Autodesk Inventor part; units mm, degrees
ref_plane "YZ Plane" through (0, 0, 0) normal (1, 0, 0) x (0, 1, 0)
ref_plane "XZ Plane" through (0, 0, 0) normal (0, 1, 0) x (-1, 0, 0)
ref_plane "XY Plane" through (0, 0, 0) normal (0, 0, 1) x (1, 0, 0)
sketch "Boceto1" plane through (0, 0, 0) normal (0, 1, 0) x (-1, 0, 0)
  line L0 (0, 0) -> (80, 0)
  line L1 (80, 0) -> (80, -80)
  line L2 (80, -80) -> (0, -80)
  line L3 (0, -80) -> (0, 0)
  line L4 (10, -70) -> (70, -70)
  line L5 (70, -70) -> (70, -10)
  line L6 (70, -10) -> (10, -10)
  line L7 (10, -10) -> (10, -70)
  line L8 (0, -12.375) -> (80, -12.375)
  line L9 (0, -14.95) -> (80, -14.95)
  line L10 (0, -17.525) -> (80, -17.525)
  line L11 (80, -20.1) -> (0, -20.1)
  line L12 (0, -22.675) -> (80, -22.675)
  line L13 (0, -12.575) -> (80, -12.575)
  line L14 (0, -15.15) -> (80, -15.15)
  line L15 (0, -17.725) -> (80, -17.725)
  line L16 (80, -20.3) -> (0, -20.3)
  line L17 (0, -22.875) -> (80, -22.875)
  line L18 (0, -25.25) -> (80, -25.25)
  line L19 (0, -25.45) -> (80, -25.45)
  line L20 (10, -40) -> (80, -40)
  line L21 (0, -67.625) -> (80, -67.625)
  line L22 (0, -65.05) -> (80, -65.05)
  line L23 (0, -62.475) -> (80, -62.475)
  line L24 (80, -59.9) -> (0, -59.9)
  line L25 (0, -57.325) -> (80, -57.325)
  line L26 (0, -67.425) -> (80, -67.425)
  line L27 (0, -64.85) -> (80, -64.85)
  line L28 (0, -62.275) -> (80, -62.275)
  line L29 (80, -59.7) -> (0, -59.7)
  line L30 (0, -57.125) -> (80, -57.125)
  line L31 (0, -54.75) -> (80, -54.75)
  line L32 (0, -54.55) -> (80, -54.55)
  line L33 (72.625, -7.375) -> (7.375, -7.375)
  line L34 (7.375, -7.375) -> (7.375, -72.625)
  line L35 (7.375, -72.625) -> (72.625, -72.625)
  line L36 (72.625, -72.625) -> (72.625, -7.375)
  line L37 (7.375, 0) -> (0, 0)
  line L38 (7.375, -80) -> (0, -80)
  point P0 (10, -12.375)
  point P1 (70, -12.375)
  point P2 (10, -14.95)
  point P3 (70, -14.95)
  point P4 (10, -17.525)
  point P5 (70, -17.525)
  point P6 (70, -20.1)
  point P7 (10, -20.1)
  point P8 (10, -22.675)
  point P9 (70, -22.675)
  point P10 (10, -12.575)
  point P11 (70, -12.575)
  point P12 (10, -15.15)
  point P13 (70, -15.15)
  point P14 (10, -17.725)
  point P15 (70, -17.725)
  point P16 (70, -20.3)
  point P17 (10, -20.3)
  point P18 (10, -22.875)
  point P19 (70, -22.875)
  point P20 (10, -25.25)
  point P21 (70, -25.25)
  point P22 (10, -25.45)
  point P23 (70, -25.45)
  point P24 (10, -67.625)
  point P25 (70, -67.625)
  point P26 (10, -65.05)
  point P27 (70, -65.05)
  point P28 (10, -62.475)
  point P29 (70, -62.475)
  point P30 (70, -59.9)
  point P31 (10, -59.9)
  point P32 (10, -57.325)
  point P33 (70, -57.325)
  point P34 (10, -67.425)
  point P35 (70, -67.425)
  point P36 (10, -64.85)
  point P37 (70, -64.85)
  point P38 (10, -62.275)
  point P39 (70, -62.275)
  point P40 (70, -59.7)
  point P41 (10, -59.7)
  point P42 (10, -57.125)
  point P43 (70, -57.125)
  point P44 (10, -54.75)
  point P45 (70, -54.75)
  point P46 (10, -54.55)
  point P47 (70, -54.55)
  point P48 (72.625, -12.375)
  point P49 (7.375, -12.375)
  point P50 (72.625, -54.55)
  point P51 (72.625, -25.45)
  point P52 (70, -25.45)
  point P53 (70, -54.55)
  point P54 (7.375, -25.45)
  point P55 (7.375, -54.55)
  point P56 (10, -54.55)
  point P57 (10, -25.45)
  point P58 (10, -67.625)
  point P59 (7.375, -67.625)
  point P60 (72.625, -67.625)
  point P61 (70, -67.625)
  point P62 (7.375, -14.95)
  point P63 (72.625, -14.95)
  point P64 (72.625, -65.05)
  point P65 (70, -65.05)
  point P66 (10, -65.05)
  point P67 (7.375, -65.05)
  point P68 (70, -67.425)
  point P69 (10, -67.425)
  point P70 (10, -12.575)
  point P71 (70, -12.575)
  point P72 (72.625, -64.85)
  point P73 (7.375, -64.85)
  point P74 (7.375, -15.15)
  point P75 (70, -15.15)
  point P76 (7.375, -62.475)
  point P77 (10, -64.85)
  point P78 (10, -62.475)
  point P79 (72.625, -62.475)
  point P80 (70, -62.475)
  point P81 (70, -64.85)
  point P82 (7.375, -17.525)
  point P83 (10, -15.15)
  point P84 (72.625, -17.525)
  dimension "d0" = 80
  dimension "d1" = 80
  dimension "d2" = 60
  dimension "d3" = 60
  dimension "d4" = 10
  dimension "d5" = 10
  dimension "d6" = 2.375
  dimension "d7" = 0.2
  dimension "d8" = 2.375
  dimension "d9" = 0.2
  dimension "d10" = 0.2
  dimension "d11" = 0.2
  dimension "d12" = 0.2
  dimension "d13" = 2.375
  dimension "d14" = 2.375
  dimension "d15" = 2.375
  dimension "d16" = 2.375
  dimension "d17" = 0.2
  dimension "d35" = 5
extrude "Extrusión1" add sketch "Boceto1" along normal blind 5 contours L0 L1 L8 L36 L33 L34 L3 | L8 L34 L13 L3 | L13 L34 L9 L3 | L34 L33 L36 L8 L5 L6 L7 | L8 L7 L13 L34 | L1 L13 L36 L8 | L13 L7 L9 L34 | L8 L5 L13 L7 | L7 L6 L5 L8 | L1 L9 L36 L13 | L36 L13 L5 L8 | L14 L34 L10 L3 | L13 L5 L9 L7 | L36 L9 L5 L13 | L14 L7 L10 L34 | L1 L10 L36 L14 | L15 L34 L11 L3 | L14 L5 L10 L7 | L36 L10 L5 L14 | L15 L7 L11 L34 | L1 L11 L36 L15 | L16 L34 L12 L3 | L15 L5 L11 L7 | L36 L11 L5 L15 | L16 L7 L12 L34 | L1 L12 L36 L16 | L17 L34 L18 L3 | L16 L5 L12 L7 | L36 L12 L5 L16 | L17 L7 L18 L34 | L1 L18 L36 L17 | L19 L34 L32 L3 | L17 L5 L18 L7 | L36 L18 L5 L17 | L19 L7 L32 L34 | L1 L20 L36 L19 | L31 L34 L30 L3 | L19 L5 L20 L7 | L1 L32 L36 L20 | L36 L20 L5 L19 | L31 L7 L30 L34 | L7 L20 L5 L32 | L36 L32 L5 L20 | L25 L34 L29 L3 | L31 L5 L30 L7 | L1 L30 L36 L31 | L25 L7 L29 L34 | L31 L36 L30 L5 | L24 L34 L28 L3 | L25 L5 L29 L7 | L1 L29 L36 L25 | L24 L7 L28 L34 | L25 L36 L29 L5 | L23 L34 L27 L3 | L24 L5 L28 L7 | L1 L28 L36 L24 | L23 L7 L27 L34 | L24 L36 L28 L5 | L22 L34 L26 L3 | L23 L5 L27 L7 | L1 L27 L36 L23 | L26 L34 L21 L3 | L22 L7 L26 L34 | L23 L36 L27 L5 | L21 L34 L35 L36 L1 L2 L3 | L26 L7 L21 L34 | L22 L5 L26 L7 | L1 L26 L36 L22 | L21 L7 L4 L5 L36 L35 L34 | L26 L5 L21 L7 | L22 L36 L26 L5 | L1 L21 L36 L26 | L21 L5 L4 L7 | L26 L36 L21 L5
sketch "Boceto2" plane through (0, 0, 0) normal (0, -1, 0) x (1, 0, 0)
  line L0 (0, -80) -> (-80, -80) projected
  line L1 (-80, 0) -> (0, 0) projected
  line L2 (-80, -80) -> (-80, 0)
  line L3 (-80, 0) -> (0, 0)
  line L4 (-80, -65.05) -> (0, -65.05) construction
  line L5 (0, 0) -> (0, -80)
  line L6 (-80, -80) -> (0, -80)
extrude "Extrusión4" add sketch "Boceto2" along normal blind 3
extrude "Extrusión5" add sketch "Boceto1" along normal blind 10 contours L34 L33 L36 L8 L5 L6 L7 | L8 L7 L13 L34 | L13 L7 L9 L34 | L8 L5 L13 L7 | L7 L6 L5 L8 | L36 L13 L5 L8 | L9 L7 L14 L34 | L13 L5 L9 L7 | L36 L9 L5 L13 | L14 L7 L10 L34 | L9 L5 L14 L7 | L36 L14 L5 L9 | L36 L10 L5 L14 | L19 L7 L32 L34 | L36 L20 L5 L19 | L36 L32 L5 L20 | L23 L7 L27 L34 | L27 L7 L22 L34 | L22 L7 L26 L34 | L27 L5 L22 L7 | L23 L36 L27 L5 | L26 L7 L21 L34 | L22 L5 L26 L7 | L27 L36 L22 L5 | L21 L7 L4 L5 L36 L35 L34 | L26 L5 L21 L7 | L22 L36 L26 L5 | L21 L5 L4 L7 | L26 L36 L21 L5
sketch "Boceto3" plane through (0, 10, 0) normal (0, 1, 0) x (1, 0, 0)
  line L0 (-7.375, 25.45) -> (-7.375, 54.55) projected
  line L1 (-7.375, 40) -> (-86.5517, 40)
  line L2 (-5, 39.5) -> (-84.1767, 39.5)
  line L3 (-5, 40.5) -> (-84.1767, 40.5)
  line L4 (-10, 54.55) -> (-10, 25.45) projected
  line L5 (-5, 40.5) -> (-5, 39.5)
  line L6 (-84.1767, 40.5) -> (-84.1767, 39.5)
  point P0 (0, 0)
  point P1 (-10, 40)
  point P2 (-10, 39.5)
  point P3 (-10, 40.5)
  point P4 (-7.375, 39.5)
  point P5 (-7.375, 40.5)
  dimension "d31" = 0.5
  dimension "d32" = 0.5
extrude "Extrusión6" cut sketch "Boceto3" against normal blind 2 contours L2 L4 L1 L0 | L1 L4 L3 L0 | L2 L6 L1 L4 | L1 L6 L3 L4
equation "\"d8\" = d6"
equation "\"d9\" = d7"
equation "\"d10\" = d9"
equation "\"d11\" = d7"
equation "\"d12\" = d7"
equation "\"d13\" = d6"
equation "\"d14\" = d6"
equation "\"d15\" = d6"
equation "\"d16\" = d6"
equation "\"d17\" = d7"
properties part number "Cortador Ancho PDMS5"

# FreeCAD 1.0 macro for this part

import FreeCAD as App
import Part
import Sketcher
Q = App.Units.Quantity


def add_polygon(sketch, points):
    """Adds a closed chain of lines whose ends are joined by coincident constraints."""
    first, n = sketch.GeometryCount, len(points)
    for a, b in zip(points, points[1:] + points[:1]):
        sketch.addGeometry(Part.LineSegment(App.Vector(*a, 0), App.Vector(*b, 0)), False)
    for i in range(n):
        sketch.addConstraint(Sketcher.Constraint("Coincident", first + i, 2, first + (i + 1) % n, 1))

doc = App.newDocument("Part")
body = doc.addObject("PartDesign::Body", "Body")
body.AllowCompound = True

sketch1 = body.newObject("Sketcher::SketchObject", "Sketch")
sketch1.AttachmentSupport = (doc.getObject("XZ_Plane"), [""])
sketch1.MapMode = "FlatFace"
add_polygon(sketch1, [(0, 0), (0, -14.9), (-80, -14.9), (-80, 0)])
add_polygon(sketch1, [(0, -15.2), (0, -17.5), (-80, -17.5), (-80, -15.2)])
add_polygon(sketch1, [(0, -17.7), (0, -20.1), (-80, -20.1), (-80, -17.7)])
add_polygon(sketch1, [(0, -20.3), (0, -22.7), (-80, -22.7), (-80, -20.3)])
add_polygon(sketch1, [(0, -22.9), (0, -25.2), (-80, -25.2), (-80, -22.9)])
add_polygon(sketch1, [(0, -25.4), (0, -54.5), (-80, -54.5), (-80, -25.4)])
add_polygon(sketch1, [(0, -54.8), (0, -57.1), (-80, -57.1), (-80, -54.8)])
add_polygon(sketch1, [(0, -57.3), (0, -59.7), (-80, -59.7), (-80, -57.3)])
add_polygon(sketch1, [(0, -59.9), (0, -62.3), (-80, -62.3), (-80, -59.9)])
add_polygon(sketch1, [(0, -62.5), (0, -64.8), (-80, -64.8), (-80, -62.5)])
add_polygon(sketch1, [(0, -65), (0, -80), (-80, -80), (-80, -65)])
sketch1.addConstraint(Sketcher.Constraint("Vertical", 0))
sketch1.addConstraint(Sketcher.Constraint("Horizontal", 1))
sketch1.addConstraint(Sketcher.Constraint("Vertical", 2))
sketch1.addConstraint(Sketcher.Constraint("Horizontal", 3))
sketch1.addConstraint(Sketcher.Constraint("Vertical", 4))
sketch1.addConstraint(Sketcher.Constraint("Horizontal", 5))
sketch1.addConstraint(Sketcher.Constraint("Vertical", 6))
sketch1.addConstraint(Sketcher.Constraint("Horizontal", 7))
sketch1.addConstraint(Sketcher.Constraint("Vertical", 8))
sketch1.addConstraint(Sketcher.Constraint("Horizontal", 9))
sketch1.addConstraint(Sketcher.Constraint("Vertical", 10))
sketch1.addConstraint(Sketcher.Constraint("Horizontal", 11))
sketch1.addConstraint(Sketcher.Constraint("Vertical", 12))
sketch1.addConstraint(Sketcher.Constraint("Horizontal", 13))
sketch1.addConstraint(Sketcher.Constraint("Vertical", 14))
sketch1.addConstraint(Sketcher.Constraint("Horizontal", 15))
sketch1.addConstraint(Sketcher.Constraint("Vertical", 16))
sketch1.addConstraint(Sketcher.Constraint("Horizontal", 17))
sketch1.addConstraint(Sketcher.Constraint("Vertical", 18))
sketch1.addConstraint(Sketcher.Constraint("Horizontal", 19))
sketch1.addConstraint(Sketcher.Constraint("Vertical", 20))
sketch1.addConstraint(Sketcher.Constraint("Horizontal", 21))
sketch1.addConstraint(Sketcher.Constraint("Vertical", 22))
sketch1.addConstraint(Sketcher.Constraint("Horizontal", 23))
sketch1.addConstraint(Sketcher.Constraint("Vertical", 24))
sketch1.addConstraint(Sketcher.Constraint("Horizontal", 25))
sketch1.addConstraint(Sketcher.Constraint("Vertical", 26))
sketch1.addConstraint(Sketcher.Constraint("Horizontal", 27))
sketch1.addConstraint(Sketcher.Constraint("Vertical", 28))
sketch1.addConstraint(Sketcher.Constraint("Horizontal", 29))
sketch1.addConstraint(Sketcher.Constraint("Vertical", 30))
sketch1.addConstraint(Sketcher.Constraint("Horizontal", 31))
sketch1.addConstraint(Sketcher.Constraint("Vertical", 32))
sketch1.addConstraint(Sketcher.Constraint("Horizontal", 33))
sketch1.addConstraint(Sketcher.Constraint("Vertical", 34))
sketch1.addConstraint(Sketcher.Constraint("Horizontal", 35))
sketch1.addConstraint(Sketcher.Constraint("Vertical", 36))
sketch1.addConstraint(Sketcher.Constraint("Horizontal", 37))
sketch1.addConstraint(Sketcher.Constraint("Vertical", 38))
sketch1.addConstraint(Sketcher.Constraint("Horizontal", 39))
sketch1.addConstraint(Sketcher.Constraint("Vertical", 40))
sketch1.addConstraint(Sketcher.Constraint("Horizontal", 41))
sketch1.addConstraint(Sketcher.Constraint("Vertical", 42))
sketch1.addConstraint(Sketcher.Constraint("Horizontal", 43))
sketch1.addConstraint(Sketcher.Constraint("Coincident", 3, 2, -1, 1))
sketch1.addConstraint(Sketcher.Constraint("PointOnObject", 4, 2, -2))
sketch1.addConstraint(Sketcher.Constraint("PointOnObject", 8, 2, -2))
sketch1.addConstraint(Sketcher.Constraint("PointOnObject", 12, 2, -2))
sketch1.addConstraint(Sketcher.Constraint("PointOnObject", 16, 2, -2))
sketch1.addConstraint(Sketcher.Constraint("PointOnObject", 20, 2, -2))
sketch1.addConstraint(Sketcher.Constraint("PointOnObject", 24, 2, -2))
sketch1.addConstraint(Sketcher.Constraint("PointOnObject", 28, 2, -2))
sketch1.addConstraint(Sketcher.Constraint("PointOnObject", 32, 2, -2))
sketch1.addConstraint(Sketcher.Constraint("PointOnObject", 36, 2, -2))
sketch1.addConstraint(Sketcher.Constraint("PointOnObject", 40, 2, -2))
sketch1.addConstraint(Sketcher.Constraint("Vertical", 2, 2, 5, 2))
sketch1.addConstraint(Sketcher.Constraint("Vertical", 6, 2, 9, 2))
sketch1.addConstraint(Sketcher.Constraint("Vertical", 10, 2, 13, 2))
sketch1.addConstraint(Sketcher.Constraint("Vertical", 14, 2, 17, 2))
sketch1.addConstraint(Sketcher.Constraint("Vertical", 18, 2, 21, 2))
sketch1.addConstraint(Sketcher.Constraint("Vertical", 22, 2, 25, 2))
sketch1.addConstraint(Sketcher.Constraint("Vertical", 26, 2, 29, 2))
sketch1.addConstraint(Sketcher.Constraint("Vertical", 30, 2, 33, 2))
sketch1.addConstraint(Sketcher.Constraint("Vertical", 34, 2, 37, 2))
sketch1.addConstraint(Sketcher.Constraint("Vertical", 38, 2, 41, 2))
sketch1.addConstraint(Sketcher.Constraint("Equal", 6, 8))
sketch1.addConstraint(Sketcher.Constraint("Equal", 10, 12))
sketch1.addConstraint(Sketcher.Constraint("Equal", 14, 16))
sketch1.addConstraint(Sketcher.Constraint("Equal", 18, 24))
sketch1.addConstraint(Sketcher.Constraint("Equal", 26, 28))
sketch1.addConstraint(Sketcher.Constraint("Equal", 30, 32))
sketch1.addConstraint(Sketcher.Constraint("Equal", 34, 36))
sketch1.addConstraint(Sketcher.Constraint("Equal", 2, 40))
sketch1.addConstraint(Sketcher.Constraint("DistanceX", 1, 2, 1, 1, Q("80 mm")))
sketch1.addConstraint(Sketcher.Constraint("DistanceY", 40, 2, -1, 1, Q("80 mm")))
sketch1.addConstraint(Sketcher.Constraint("DistanceY", 6, 2, 1, 2, Q("0.2 mm")))
sketch1.addConstraint(Sketcher.Constraint("DistanceY", 10, 2, 5, 2, Q("0.2 mm")))
sketch1.addConstraint(Sketcher.Constraint("DistanceY", 14, 2, 9, 2, Q("0.2 mm")))
sketch1.addConstraint(Sketcher.Constraint("DistanceY", 18, 2, 13, 2, Q("0.2 mm")))
sketch1.addConstraint(Sketcher.Constraint("DistanceY", 22, 2, 17, 2, Q("0.2 mm")))
sketch1.addConstraint(Sketcher.Constraint("DistanceY", 26, 2, 21, 2, Q("0.2 mm")))
sketch1.addConstraint(Sketcher.Constraint("DistanceY", 30, 2, 25, 2, Q("0.2 mm")))
sketch1.addConstraint(Sketcher.Constraint("DistanceY", 34, 2, 29, 2, Q("0.2 mm")))
sketch1.addConstraint(Sketcher.Constraint("DistanceY", 38, 2, 33, 2, Q("0.2 mm")))
sketch1.addConstraint(Sketcher.Constraint("DistanceY", 42, 2, 37, 2, Q("0.2 mm")))
sketch1.addConstraint(Sketcher.Constraint("DistanceY", 4, 2, 4, 1, Q("2.375 mm")))
sketch1.addConstraint(Sketcher.Constraint("DistanceY", 20, 2, 20, 1, Q("29.1 mm")))
pad1 = body.newObject("PartDesign::Pad", "Pad")
pad1.Profile = sketch1
pad1.Length = 5
pad1.Reversed = True

sketch2 = body.newObject("Sketcher::SketchObject", "Sketch001")
sketch2.AttachmentSupport = (doc.getObject("XZ_Plane"), [""])
sketch2.MapMode = "FlatFace"
add_polygon(sketch2, [(-80, -80), (0, -80), (0, 0), (-80, 0)])
sketch2.addConstraint(Sketcher.Constraint("Horizontal", 0))
sketch2.addConstraint(Sketcher.Constraint("Vertical", 1))
sketch2.addConstraint(Sketcher.Constraint("Horizontal", 2))
sketch2.addConstraint(Sketcher.Constraint("Vertical", 3))
sketch2.addConstraint(Sketcher.Constraint("Coincident", 1, 2, -1, 1))
sketch2.addConstraint(Sketcher.Constraint("Equal", 2, 1))
sketch2.addConstraint(Sketcher.Constraint("DistanceX", 0, 1, 0, 2, Q("80 mm")))
pad2 = body.newObject("PartDesign::Pad", "Pad001")
pad2.Profile = sketch2
pad2.Length = 3

sketch3 = body.newObject("Sketcher::SketchObject", "Sketch002")
sketch3.AttachmentSupport = (doc.getObject("XZ_Plane"), [""])
sketch3.MapMode = "FlatFace"
add_polygon(sketch3, [(-7.4, -7.4), (-7.4, -17.5), (-10, -17.5), (-10, -15.2), (-70, -15.2), (-70, -17.5), (-72.6, -17.5), (-72.6, -7.4)])
add_polygon(sketch3, [(-10, -25.4), (-7.4, -25.4), (-7.4, -54.5), (-10, -54.5)])
add_polygon(sketch3, [(-72.6, -25.4), (-70, -25.4), (-70, -54.5), (-72.6, -54.5)])
add_polygon(sketch3, [(-10, -62.5), (-7.4, -62.5), (-7.4, -72.6), (-72.6, -72.6), (-72.6, -62.5), (-70, -62.5), (-70, -64.8), (-10, -64.8)])
sketch3.addConstraint(Sketcher.Constraint("Vertical", 0))
sketch3.addConstraint(Sketcher.Constraint("Horizontal", 1))
sketch3.addConstraint(Sketcher.Constraint("Vertical", 2))
sketch3.addConstraint(Sketcher.Constraint("Horizontal", 3))
sketch3.addConstraint(Sketcher.Constraint("Vertical", 4))
sketch3.addConstraint(Sketcher.Constraint("Horizontal", 5))
sketch3.addConstraint(Sketcher.Constraint("Vertical", 6))
sketch3.addConstraint(Sketcher.Constraint("Horizontal", 7))
sketch3.addConstraint(Sketcher.Constraint("Horizontal", 8))
sketch3.addConstraint(Sketcher.Constraint("Vertical", 9))
sketch3.addConstraint(Sketcher.Constraint("Horizontal", 10))
sketch3.addConstraint(Sketcher.Constraint("Vertical", 11))
sketch3.addConstraint(Sketcher.Constraint("Horizontal", 12))
sketch3.addConstraint(Sketcher.Constraint("Vertical", 13))
sketch3.addConstraint(Sketcher.Constraint("Horizontal", 14))
sketch3.addConstraint(Sketcher.Constraint("Vertical", 15))
sketch3.addConstraint(Sketcher.Constraint("Horizontal", 16))
sketch3.addConstraint(Sketcher.Constraint("Vertical", 17))
sketch3.addConstraint(Sketcher.Constraint("Horizontal", 18))
sketch3.addConstraint(Sketcher.Constraint("Vertical", 19))
sketch3.addConstraint(Sketcher.Constraint("Horizontal", 20))
sketch3.addConstraint(Sketcher.Constraint("Vertical", 21))
sketch3.addConstraint(Sketcher.Constraint("Horizontal", 22))
sketch3.addConstraint(Sketcher.Constraint("Vertical", 23))
sketch3.addConstraint(Sketcher.Constraint("Horizontal", 1, 2, 4, 2))
sketch3.addConstraint(Sketcher.Constraint("Horizontal", 11, 2, 12, 2))
sketch3.addConstraint(Sketcher.Constraint("Horizontal", 10, 2, 13, 2))
sketch3.addConstraint(Sketcher.Constraint("Horizontal", 16, 2, 19, 2))
sketch3.addConstraint(Sketcher.Constraint("Vertical", 7, 2, 8, 2))
sketch3.addConstraint(Sketcher.Constraint("Vertical", 2, 2, 10, 2))
sketch3.addConstraint(Sketcher.Constraint("Vertical", 4, 2, 12, 2))
sketch3.addConstraint(Sketcher.Constraint("Vertical", 6, 2, 14, 2))
sketch3.addConstraint(Sketcher.Constraint("Vertical", 9, 2, 16, 2))
sketch3.addConstraint(Sketcher.Constraint("Vertical", 15, 2, 18, 2))
sketch3.addConstraint(Sketcher.Constraint("Vertical", 13, 2, 20, 2))
sketch3.addConstraint(Sketcher.Constraint("Vertical", 11, 2, 22, 2))
sketch3.addConstraint(Sketcher.Constraint("Equal", 1, 5))
sketch3.addConstraint(Sketcher.Constraint("Equal", 6, 17))
sketch3.addConstraint(Sketcher.Constraint("Equal", 4, 21))
sketch3.addConstraint(Sketcher.Constraint("DistanceX", 3, 2, 3, 1, Q("60 mm")))
sketch3.addConstraint(Sketcher.Constraint("DistanceX", 1, 2, -1, 1, Q("10 mm")))
sketch3.addConstraint(Sketcher.Constraint("DistanceY", 2, 1, 2, 2, Q("2.375 mm")))
sketch3.addConstraint(Sketcher.Constraint("DistanceY", 9, 2, 9, 1, Q("29.1 mm")))
sketch3.addConstraint(Sketcher.Constraint("DistanceX", 7, 1, 7, 2, Q("65.25 mm")))
sketch3.addConstraint(Sketcher.Constraint("DistanceY", 0, 2, 0, 1, Q("10.15 mm")))
sketch3.addConstraint(Sketcher.Constraint("DistanceY", 8, 2, 2, 2, Q("10.3 mm")))
sketch3.addConstraint(Sketcher.Constraint("DistanceY", 18, 2, 5, 2, Q("55.1 mm")))
sketch3.addConstraint(Sketcher.Constraint("DistanceY", 2, 2, -1, 1, Q("15.15 mm")))
pad3 = body.newObject("PartDesign::Pad", "Pad002")
pad3.Profile = sketch3
pad3.Length = 10
pad3.Reversed = True

sketch4 = body.newObject("Sketcher::SketchObject", "Sketch003")
sketch4.AttachmentSupport = (doc.getObject("XZ_Plane"), [""])
sketch4.MapMode = "FlatFace"
sketch4.AttachmentOffset = App.Placement(App.Vector(0, 0, -10), App.Rotation())
add_polygon(sketch4, [(-7.4, -39.5), (-7.4, -40.5), (-84.2, -40.5), (-84.2, -39.5)])
sketch4.addConstraint(Sketcher.Constraint("Vertical", 0))
sketch4.addConstraint(Sketcher.Constraint("Horizontal", 1))
sketch4.addConstraint(Sketcher.Constraint("Vertical", 2))
sketch4.addConstraint(Sketcher.Constraint("Horizontal", 3))
sketch4.addConstraint(Sketcher.Constraint("DistanceY", 0, 2, 0, 1, Q("1 mm")))
sketch4.addConstraint(Sketcher.Constraint("DistanceY", 0, 2, -1, 1, Q("40.5 mm")))
sketch4.addConstraint(Sketcher.Constraint("DistanceX", 1, 2, 1, 1, Q("76.8017 mm")))
sketch4.addConstraint(Sketcher.Constraint("DistanceX", 0, 2, -1, 1, Q("7.375 mm")))
pocket1 = body.newObject("PartDesign::Pocket", "Pocket")
pocket1.Profile = sketch4
pocket1.Length = 2
pocket1.Reversed = True

doc.recompute()
